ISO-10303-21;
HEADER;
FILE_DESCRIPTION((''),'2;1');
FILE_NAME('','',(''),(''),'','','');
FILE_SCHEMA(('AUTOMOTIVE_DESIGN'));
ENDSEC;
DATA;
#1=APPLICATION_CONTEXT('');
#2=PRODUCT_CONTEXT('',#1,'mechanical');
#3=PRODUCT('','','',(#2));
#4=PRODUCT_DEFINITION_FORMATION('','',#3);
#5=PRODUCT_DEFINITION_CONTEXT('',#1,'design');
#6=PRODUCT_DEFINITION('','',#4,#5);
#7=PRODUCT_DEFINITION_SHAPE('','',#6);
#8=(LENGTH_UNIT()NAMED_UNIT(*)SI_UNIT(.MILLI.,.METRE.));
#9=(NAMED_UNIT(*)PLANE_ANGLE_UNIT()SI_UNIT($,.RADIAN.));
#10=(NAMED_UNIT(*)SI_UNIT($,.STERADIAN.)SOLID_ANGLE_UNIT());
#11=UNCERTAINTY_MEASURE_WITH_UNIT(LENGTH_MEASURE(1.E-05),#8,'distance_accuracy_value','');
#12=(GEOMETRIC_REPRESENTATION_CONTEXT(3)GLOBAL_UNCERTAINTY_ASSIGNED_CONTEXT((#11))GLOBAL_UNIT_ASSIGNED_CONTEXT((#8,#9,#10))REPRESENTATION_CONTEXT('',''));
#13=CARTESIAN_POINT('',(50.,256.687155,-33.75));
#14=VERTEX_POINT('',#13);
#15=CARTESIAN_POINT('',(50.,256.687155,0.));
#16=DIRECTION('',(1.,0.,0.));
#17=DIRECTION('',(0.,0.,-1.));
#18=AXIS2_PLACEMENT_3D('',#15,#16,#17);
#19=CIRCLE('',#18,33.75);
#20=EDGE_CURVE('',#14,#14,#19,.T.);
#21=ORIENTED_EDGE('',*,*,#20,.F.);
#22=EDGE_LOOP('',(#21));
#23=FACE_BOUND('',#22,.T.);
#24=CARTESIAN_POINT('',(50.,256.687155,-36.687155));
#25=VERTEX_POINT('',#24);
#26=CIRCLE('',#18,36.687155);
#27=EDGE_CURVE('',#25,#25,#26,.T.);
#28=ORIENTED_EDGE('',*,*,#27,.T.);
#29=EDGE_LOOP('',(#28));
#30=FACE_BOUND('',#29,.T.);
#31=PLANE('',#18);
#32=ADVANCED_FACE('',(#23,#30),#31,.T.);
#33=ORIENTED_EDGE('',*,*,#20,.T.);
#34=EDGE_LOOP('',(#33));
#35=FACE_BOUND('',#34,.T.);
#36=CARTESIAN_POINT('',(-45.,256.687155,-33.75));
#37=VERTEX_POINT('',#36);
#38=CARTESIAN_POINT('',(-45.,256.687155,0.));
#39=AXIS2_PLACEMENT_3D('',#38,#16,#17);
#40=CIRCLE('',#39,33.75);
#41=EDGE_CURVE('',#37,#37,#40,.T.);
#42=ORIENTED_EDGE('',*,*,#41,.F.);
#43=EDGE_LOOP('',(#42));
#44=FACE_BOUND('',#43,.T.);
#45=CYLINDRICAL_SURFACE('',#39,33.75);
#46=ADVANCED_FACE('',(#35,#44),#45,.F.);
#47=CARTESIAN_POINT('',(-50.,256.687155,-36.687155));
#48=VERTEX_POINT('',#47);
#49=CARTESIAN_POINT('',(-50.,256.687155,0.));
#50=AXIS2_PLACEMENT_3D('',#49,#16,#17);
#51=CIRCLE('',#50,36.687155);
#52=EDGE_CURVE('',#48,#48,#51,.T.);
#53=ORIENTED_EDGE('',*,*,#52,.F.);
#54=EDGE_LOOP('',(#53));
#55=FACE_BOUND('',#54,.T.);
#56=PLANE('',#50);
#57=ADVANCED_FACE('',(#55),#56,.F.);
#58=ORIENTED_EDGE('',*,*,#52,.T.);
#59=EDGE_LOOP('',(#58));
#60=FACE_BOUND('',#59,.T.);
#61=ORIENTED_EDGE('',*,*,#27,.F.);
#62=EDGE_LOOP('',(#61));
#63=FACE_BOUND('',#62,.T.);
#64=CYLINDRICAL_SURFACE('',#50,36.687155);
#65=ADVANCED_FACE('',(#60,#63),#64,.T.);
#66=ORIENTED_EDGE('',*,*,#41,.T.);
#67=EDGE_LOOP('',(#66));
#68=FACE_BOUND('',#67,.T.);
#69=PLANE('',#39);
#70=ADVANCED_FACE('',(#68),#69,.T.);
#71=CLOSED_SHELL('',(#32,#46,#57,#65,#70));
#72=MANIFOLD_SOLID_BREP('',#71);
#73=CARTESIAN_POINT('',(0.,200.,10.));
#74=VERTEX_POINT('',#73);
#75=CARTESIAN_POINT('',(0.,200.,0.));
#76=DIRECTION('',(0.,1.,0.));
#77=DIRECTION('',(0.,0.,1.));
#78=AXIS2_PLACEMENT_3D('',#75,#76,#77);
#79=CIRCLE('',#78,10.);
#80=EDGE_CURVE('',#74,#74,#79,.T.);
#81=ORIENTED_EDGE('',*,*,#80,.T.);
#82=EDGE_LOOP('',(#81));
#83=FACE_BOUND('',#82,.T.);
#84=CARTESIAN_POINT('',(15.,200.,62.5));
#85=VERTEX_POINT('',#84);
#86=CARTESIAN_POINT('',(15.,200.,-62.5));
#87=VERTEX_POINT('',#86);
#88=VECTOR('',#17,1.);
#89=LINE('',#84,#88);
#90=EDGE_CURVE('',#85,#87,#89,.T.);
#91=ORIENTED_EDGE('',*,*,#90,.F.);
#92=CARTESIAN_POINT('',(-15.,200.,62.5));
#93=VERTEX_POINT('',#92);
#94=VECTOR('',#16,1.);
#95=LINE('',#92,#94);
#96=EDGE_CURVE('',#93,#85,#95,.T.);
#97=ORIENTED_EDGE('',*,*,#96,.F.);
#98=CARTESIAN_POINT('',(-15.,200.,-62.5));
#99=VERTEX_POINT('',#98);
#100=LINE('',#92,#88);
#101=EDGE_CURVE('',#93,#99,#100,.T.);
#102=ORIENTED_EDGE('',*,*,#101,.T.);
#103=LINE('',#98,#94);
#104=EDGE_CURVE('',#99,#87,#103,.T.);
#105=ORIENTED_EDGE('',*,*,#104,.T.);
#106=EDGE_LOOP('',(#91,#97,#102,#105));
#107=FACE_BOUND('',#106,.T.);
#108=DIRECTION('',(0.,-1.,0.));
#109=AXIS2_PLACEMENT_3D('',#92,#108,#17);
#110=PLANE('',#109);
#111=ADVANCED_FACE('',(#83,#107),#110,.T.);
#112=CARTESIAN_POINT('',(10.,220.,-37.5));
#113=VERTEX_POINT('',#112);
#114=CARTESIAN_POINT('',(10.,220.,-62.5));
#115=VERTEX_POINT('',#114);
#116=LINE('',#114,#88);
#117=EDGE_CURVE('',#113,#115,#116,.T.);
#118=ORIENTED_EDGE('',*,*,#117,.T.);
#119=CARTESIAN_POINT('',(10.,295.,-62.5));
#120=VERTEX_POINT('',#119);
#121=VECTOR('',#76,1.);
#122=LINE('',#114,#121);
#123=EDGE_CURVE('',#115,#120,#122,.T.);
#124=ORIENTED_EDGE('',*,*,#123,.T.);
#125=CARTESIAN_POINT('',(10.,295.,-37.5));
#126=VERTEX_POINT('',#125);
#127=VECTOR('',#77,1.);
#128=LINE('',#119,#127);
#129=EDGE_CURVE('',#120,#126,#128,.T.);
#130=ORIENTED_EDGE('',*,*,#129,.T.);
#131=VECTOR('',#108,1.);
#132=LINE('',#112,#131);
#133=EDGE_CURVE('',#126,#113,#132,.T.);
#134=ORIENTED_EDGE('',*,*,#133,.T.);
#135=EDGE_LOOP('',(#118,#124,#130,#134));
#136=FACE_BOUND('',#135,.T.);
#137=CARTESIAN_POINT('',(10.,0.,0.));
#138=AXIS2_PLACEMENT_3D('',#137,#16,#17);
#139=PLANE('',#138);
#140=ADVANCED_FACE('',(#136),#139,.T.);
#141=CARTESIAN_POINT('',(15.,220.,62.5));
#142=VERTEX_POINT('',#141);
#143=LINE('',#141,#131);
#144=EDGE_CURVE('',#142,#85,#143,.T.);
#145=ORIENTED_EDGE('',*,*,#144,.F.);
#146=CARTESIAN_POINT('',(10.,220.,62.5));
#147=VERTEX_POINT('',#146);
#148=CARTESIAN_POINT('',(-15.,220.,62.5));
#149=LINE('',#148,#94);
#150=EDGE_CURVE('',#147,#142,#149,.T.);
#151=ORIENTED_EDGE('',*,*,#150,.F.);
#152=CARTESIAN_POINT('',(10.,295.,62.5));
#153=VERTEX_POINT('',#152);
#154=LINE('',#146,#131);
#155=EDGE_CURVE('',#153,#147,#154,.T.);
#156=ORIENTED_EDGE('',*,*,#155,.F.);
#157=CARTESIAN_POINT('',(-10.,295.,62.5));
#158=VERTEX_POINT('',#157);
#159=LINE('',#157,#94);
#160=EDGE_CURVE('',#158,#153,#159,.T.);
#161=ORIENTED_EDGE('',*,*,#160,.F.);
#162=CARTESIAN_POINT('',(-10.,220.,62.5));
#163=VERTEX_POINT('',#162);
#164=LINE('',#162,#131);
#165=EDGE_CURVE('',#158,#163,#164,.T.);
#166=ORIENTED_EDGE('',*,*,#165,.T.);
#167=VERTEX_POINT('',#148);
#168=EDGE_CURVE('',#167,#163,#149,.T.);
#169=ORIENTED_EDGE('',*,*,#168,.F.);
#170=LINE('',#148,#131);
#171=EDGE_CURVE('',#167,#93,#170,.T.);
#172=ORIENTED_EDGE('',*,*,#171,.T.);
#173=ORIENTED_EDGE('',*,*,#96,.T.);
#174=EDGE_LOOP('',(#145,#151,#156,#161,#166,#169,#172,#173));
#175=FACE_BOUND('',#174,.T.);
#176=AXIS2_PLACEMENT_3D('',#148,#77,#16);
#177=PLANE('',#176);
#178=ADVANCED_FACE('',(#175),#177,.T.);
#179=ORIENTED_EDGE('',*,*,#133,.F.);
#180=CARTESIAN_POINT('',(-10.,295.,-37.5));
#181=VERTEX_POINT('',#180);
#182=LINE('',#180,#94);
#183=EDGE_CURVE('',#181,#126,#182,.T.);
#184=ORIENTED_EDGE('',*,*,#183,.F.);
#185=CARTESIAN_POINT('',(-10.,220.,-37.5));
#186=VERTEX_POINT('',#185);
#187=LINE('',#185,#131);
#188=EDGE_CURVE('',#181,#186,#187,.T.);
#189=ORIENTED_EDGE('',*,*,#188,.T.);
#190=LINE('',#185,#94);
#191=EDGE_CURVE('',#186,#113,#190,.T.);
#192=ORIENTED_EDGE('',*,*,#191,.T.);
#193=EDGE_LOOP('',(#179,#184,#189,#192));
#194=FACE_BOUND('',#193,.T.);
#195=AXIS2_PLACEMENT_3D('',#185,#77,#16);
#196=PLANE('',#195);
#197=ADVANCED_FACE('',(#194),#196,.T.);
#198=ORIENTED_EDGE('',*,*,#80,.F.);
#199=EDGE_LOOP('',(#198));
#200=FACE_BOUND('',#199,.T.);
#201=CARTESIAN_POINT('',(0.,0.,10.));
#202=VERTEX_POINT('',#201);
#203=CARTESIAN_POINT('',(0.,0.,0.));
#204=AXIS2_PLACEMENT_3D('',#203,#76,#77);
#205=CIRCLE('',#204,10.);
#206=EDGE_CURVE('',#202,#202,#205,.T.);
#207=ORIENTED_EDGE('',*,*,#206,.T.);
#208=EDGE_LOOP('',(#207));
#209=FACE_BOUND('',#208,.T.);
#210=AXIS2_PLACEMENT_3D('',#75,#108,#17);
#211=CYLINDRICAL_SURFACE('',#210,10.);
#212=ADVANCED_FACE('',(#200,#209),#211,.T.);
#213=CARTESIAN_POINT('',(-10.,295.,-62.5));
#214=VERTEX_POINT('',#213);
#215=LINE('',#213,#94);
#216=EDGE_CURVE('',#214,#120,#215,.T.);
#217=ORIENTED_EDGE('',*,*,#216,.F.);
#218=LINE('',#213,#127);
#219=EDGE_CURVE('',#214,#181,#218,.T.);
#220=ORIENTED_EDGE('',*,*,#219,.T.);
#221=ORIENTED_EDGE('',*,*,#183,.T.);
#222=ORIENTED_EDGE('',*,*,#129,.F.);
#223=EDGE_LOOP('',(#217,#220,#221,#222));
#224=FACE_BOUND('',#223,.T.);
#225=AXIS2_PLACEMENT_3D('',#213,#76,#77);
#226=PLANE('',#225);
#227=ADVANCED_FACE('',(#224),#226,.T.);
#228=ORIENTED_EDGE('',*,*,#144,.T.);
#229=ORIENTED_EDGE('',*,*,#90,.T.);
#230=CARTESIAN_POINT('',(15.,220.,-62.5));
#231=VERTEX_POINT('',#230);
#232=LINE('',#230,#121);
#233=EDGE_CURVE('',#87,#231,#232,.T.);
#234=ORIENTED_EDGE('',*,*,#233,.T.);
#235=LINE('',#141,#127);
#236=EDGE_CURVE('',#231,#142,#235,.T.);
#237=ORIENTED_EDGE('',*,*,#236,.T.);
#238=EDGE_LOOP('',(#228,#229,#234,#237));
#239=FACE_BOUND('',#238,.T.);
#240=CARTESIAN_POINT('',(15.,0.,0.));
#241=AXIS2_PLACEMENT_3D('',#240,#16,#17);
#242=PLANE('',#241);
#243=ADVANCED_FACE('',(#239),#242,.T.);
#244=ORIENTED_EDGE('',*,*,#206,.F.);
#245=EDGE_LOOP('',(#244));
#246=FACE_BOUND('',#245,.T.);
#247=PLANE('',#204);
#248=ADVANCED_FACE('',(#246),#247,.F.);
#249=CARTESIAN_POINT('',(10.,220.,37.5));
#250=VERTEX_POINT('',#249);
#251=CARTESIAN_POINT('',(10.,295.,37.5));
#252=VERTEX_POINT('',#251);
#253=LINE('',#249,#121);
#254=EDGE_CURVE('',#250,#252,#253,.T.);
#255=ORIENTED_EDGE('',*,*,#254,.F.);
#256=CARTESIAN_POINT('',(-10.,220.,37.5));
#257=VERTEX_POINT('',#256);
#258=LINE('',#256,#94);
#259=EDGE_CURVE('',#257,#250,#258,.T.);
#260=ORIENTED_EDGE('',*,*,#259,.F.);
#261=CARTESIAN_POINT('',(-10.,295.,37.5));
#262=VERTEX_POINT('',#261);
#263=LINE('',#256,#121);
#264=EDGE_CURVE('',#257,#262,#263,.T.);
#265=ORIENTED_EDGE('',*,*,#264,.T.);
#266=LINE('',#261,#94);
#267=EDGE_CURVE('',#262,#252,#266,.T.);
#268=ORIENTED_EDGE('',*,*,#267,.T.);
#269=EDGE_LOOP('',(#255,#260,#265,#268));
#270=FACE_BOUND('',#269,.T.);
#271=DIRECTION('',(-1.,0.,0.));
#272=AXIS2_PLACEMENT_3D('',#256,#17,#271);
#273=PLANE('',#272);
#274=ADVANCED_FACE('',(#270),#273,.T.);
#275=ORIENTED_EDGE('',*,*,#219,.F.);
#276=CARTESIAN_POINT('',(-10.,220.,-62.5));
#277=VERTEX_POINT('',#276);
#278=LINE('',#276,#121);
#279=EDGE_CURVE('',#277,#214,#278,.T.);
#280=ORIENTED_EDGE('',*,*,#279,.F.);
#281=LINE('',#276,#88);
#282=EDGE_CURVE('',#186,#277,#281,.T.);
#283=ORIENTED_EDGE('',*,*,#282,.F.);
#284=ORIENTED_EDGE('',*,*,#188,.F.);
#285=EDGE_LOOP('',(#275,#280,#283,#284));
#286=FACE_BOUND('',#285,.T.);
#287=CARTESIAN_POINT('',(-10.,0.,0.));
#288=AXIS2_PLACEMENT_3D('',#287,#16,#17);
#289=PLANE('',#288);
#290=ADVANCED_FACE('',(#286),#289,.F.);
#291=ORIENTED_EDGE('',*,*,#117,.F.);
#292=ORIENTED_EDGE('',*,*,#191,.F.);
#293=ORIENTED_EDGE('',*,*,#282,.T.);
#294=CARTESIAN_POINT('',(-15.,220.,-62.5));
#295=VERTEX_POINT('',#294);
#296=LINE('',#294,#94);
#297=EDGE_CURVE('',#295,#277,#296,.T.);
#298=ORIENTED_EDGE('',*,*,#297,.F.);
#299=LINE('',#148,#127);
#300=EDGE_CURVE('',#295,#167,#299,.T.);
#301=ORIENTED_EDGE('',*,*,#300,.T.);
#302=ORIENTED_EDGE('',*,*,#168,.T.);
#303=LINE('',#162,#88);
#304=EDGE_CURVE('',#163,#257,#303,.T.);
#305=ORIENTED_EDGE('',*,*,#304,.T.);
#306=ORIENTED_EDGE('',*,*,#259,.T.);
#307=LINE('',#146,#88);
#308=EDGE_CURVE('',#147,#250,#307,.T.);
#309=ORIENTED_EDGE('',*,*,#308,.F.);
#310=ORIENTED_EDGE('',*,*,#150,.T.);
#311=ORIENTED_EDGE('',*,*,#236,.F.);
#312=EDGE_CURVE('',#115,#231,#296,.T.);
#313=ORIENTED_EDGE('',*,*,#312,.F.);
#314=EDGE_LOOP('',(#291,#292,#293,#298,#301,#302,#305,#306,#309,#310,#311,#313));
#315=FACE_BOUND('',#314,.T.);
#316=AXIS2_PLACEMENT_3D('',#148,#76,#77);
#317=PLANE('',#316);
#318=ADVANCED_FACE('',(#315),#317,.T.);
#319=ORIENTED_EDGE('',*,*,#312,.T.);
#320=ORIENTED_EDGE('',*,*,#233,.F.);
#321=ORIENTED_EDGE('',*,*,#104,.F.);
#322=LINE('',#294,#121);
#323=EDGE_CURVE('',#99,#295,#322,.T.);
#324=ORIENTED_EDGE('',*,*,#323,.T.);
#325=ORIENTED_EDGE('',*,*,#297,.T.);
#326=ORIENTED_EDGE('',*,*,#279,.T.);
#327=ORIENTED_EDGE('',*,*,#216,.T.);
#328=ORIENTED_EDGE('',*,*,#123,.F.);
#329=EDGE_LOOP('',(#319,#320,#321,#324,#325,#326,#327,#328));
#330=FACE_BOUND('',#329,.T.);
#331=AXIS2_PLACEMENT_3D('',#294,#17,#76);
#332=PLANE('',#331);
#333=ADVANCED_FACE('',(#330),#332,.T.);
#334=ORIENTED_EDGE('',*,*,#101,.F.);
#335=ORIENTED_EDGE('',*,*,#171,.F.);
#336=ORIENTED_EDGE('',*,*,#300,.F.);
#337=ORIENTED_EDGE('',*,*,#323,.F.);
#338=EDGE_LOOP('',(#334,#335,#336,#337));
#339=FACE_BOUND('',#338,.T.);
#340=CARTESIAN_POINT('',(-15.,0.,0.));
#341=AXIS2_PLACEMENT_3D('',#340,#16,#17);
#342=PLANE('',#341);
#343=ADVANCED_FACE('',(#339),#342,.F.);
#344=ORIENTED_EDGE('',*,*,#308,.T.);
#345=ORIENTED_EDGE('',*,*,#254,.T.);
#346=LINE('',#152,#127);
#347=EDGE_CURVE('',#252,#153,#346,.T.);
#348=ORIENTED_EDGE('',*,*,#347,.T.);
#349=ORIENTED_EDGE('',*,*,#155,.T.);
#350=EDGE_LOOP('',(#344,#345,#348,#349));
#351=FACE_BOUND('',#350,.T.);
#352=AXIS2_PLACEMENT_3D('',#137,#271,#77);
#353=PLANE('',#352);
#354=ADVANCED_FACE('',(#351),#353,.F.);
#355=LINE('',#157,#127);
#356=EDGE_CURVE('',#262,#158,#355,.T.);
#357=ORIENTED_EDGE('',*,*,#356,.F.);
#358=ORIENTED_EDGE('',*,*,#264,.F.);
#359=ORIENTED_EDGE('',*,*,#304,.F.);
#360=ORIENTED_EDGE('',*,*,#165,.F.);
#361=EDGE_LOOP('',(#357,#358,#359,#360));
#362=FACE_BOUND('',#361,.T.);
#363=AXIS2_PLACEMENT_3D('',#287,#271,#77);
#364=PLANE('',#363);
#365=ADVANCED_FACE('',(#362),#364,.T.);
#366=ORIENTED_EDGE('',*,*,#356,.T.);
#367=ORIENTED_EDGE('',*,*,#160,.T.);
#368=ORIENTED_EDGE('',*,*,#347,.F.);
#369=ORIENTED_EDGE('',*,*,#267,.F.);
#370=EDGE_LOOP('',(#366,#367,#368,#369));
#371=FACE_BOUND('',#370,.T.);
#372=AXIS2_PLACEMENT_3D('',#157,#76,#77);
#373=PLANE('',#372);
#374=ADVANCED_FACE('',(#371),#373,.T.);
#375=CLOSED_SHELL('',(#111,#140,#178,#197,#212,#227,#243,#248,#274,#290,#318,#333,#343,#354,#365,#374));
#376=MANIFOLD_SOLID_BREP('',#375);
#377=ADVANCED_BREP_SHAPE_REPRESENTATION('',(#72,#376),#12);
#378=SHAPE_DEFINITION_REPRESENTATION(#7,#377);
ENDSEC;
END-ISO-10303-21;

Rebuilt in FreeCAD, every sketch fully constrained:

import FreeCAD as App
import Part
import Sketcher
from FreeCAD import Vector
Q = App.Units.Quantity

doc = App.newDocument("Part")
body = doc.addObject("PartDesign::Body", "Body")

sketch1 = doc.addObject("Sketcher::SketchObject", "Sketch")
body.addObject(sketch1)
sketch1.AttachmentSupport = (doc.XZ_Plane, [""])
sketch1.MapMode = "FlatFace"
sketch1.addGeometry(Part.Circle(Vector(0, 0, 0), Vector(0, 0, 1), 10), False)
sketch1.addConstraint([
    Sketcher.Constraint("Coincident", 0, 3, -1, 1),
    Sketcher.Constraint("Diameter", 0, Q("20 mm")),
])
pad1 = doc.addObject("PartDesign::Pad", "Pad")
body.addObject(pad1)
pad1.Profile = sketch1
pad1.Length = 200
pad1.Reversed = True

sketch2 = doc.addObject("Sketcher::SketchObject", "Sketch001")
body.addObject(sketch2)
sketch2.AttachmentSupport = (doc.YZ_Plane, [""])
sketch2.MapMode = "FlatFace"
sketch2.addGeometry([
    Part.LineSegment(Vector(220, 62.5, 0), Vector(200, 62.5, 0)),
    Part.LineSegment(Vector(200, 62.5, 0), Vector(200, -62.5, 0)),
    Part.LineSegment(Vector(200, -62.5, 0), Vector(220, -62.5, 0)),
    Part.LineSegment(Vector(220, -62.5, 0), Vector(220, 62.5, 0)),
], False)
sketch2.addConstraint([
    Sketcher.Constraint("Coincident", 0, 2, 1, 1),
    Sketcher.Constraint("Coincident", 1, 2, 2, 1),
    Sketcher.Constraint("Coincident", 2, 2, 3, 1),
    Sketcher.Constraint("Coincident", 3, 2, 0, 1),
    Sketcher.Constraint("Horizontal", 0),
    Sketcher.Constraint("Vertical", 1),
    Sketcher.Constraint("Horizontal", 2),
    Sketcher.Constraint("Vertical", 3),
    Sketcher.Constraint("DistanceX", 0, 2, 0, 1, Q("20 mm")),
    Sketcher.Constraint("DistanceY", 1, 2, 1, 1, Q("125 mm")),
    Sketcher.Constraint("DistanceX", -1, 1, 0, 2, Q("200 mm")),
    Sketcher.Constraint("DistanceY", -1, 1, 0, 2, Q("62.5 mm")),
])
pad2 = doc.addObject("PartDesign::Pad", "Pad001")
body.addObject(pad2)
pad2.Profile = sketch2
pad2.Type = "TwoLengths"
pad2.Length = 15
pad2.Length2 = 15

sketch3 = doc.addObject("Sketcher::SketchObject", "Sketch002")
body.addObject(sketch3)
sketch3.AttachmentSupport = (doc.YZ_Plane, [""])
sketch3.MapMode = "FlatFace"
sketch3.addGeometry([
    Part.LineSegment(Vector(295, 62.5, 0), Vector(220, 62.5, 0)),
    Part.LineSegment(Vector(220, 62.5, 0), Vector(220, 37.5, 0)),
    Part.LineSegment(Vector(220, 37.5, 0), Vector(295, 37.5, 0)),
    Part.LineSegment(Vector(295, 37.5, 0), Vector(295, 62.5, 0)),
    Part.LineSegment(Vector(295, -37.5, 0), Vector(220, -37.5, 0)),
    Part.LineSegment(Vector(220, -37.5, 0), Vector(220, -62.5, 0)),
    Part.LineSegment(Vector(220, -62.5, 0), Vector(295, -62.5, 0)),
    Part.LineSegment(Vector(295, -62.5, 0), Vector(295, -37.5, 0)),
], False)
sketch3.addConstraint([
    Sketcher.Constraint("Coincident", 0, 2, 1, 1),
    Sketcher.Constraint("Coincident", 1, 2, 2, 1),
    Sketcher.Constraint("Coincident", 2, 2, 3, 1),
    Sketcher.Constraint("Coincident", 3, 2, 0, 1),
    Sketcher.Constraint("Coincident", 4, 2, 5, 1),
    Sketcher.Constraint("Coincident", 5, 2, 6, 1),
    Sketcher.Constraint("Coincident", 6, 2, 7, 1),
    Sketcher.Constraint("Coincident", 7, 2, 4, 1),
    Sketcher.Constraint("Horizontal", 0),
    Sketcher.Constraint("Vertical", 1),
    Sketcher.Constraint("Horizontal", 2),
    Sketcher.Constraint("Vertical", 3),
    Sketcher.Constraint("Horizontal", 4),
    Sketcher.Constraint("Vertical", 5),
    Sketcher.Constraint("Horizontal", 6),
    Sketcher.Constraint("Vertical", 7),
    Sketcher.Constraint("Symmetric", 1, 2, 4, 2, -1),
    Sketcher.Constraint("Symmetric", 3, 2, 6, 2, -1),
    Sketcher.Constraint("DistanceX", 0, 2, 0, 1, Q("75 mm")),
    Sketcher.Constraint("DistanceY", 1, 2, 1, 1, Q("25 mm")),
    Sketcher.Constraint("DistanceX", -1, 1, 0, 2, Q("220 mm")),
    Sketcher.Constraint("DistanceY", 4, 2, 1, 2, Q("75 mm")),
])
pad3 = doc.addObject("PartDesign::Pad", "Pad002")
body.addObject(pad3)
pad3.Profile = sketch3
pad3.Type = "TwoLengths"
pad3.Length = 10
pad3.Length2 = 10
body2 = doc.addObject("PartDesign::Body", "Body001")

sketch4 = doc.addObject("Sketcher::SketchObject", "Sketch003")
body2.addObject(sketch4)
sketch4.AttachmentSupport = (doc.getObject("YZ_Plane001"), [""])
sketch4.MapMode = "FlatFace"
sketch4.addGeometry(Part.Circle(Vector(256.687155, 0, 0), Vector(0, 0, 1), 36.687155), False)
sketch4.addConstraint([
    Sketcher.Constraint("PointOnObject", 0, 3, -1),
    Sketcher.Constraint("Diameter", 0, Q("73.37431 mm")),
    Sketcher.Constraint("DistanceX", -1, 1, 0, 3, Q("256.687155 mm")),
])
pad4 = doc.addObject("PartDesign::Pad", "Pad003")
body2.addObject(pad4)
pad4.Profile = sketch4
pad4.Type = "TwoLengths"
pad4.Length = 50
pad4.Length2 = 50

sketch5 = doc.addObject("Sketcher::SketchObject", "Sketch004")
body2.addObject(sketch5)
sketch5.AttachmentSupport = (doc.getObject("YZ_Plane001"), [""])
sketch5.MapMode = "FlatFace"
sketch5.AttachmentOffset = App.Placement(Vector(0, 0, 50), App.Rotation())
sketch5.addGeometry(Part.Circle(Vector(256.687155, 0, 0), Vector(0, 0, 1), 33.75), False)
sketch5.addConstraint([
    Sketcher.Constraint("PointOnObject", 0, 3, -1),
    Sketcher.Constraint("Diameter", 0, Q("67.5 mm")),
    Sketcher.Constraint("DistanceX", -1, 1, 0, 3, Q("256.687155 mm")),
])
pocket1 = doc.addObject("PartDesign::Pocket", "Pocket")
body2.addObject(pocket1)
pocket1.Profile = sketch5
pocket1.Length = 95

doc.recompute()
